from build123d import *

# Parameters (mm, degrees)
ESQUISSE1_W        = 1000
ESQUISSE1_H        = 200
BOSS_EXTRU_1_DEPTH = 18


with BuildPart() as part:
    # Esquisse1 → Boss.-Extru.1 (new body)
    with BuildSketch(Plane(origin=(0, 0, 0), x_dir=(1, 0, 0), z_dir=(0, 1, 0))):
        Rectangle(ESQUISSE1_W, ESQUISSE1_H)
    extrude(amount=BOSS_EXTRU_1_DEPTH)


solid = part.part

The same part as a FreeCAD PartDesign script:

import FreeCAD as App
import Part
import Sketcher

V = App.Vector


def add_polygon(sketch, points):
    """Adds a closed chain of lines whose ends are joined by coincident constraints."""
    first, n = sketch.GeometryCount, len(points)
    for a, b in zip(points, points[1:] + points[:1]):
        sketch.addGeometry(Part.LineSegment(App.Vector(*a, 0), App.Vector(*b, 0)), False)
    for i in range(n):
        sketch.addConstraint(Sketcher.Constraint("Coincident", first + i, 2, first + (i + 1) % n, 1))

doc = App.newDocument("Part")
params = doc.addObject("Spreadsheet::Sheet", "Params")
for row, (alias, value) in enumerate([
    ("sketch1_width", "1000 mm"),
    ("sketch1_height", "200 mm"),
    ("pad1_length", "18 mm"),
], start=1):
    params.set(f"A{row}", alias)
    params.set(f"B{row}", "=" + value)
    params.setAlias(f"B{row}", alias)

body = doc.addObject("PartDesign::Body", "Body")

sketch1 = body.newObject("Sketcher::SketchObject", "Sketch")
sketch1.AttachmentSupport = (doc.getObject("XZ_Plane"), [""])
sketch1.MapMode = "FlatFace"
add_polygon(sketch1, [(-500, -100), (-500, 100), (500, 100), (500, -100)])
sketch1.addConstraint(Sketcher.Constraint("Vertical", 0))
sketch1.addConstraint(Sketcher.Constraint("Horizontal", 1))
sketch1.addConstraint(Sketcher.Constraint("Vertical", 2))
sketch1.addConstraint(Sketcher.Constraint("Horizontal", 3))
sketch1.addConstraint(Sketcher.Constraint("Symmetric", 0, 2, 2, 2, -1, 1))
sketch1.addConstraint(Sketcher.Constraint("DistanceX", 1, 1, 1, 2, 1000.0))
sketch1.addConstraint(Sketcher.Constraint("DistanceY", 0, 1, 0, 2, 200.0))
sketch1.setExpression("Constraints[9]", "Params.sketch1_width")
sketch1.setExpression("Constraints[10]", "Params.sketch1_height")
pad1 = body.newObject("PartDesign::Pad", "Pad")
pad1.Profile = sketch1
pad1.setExpression("Length", "Params.pad1_length")
pad1.Reversed = True

doc.recompute()
